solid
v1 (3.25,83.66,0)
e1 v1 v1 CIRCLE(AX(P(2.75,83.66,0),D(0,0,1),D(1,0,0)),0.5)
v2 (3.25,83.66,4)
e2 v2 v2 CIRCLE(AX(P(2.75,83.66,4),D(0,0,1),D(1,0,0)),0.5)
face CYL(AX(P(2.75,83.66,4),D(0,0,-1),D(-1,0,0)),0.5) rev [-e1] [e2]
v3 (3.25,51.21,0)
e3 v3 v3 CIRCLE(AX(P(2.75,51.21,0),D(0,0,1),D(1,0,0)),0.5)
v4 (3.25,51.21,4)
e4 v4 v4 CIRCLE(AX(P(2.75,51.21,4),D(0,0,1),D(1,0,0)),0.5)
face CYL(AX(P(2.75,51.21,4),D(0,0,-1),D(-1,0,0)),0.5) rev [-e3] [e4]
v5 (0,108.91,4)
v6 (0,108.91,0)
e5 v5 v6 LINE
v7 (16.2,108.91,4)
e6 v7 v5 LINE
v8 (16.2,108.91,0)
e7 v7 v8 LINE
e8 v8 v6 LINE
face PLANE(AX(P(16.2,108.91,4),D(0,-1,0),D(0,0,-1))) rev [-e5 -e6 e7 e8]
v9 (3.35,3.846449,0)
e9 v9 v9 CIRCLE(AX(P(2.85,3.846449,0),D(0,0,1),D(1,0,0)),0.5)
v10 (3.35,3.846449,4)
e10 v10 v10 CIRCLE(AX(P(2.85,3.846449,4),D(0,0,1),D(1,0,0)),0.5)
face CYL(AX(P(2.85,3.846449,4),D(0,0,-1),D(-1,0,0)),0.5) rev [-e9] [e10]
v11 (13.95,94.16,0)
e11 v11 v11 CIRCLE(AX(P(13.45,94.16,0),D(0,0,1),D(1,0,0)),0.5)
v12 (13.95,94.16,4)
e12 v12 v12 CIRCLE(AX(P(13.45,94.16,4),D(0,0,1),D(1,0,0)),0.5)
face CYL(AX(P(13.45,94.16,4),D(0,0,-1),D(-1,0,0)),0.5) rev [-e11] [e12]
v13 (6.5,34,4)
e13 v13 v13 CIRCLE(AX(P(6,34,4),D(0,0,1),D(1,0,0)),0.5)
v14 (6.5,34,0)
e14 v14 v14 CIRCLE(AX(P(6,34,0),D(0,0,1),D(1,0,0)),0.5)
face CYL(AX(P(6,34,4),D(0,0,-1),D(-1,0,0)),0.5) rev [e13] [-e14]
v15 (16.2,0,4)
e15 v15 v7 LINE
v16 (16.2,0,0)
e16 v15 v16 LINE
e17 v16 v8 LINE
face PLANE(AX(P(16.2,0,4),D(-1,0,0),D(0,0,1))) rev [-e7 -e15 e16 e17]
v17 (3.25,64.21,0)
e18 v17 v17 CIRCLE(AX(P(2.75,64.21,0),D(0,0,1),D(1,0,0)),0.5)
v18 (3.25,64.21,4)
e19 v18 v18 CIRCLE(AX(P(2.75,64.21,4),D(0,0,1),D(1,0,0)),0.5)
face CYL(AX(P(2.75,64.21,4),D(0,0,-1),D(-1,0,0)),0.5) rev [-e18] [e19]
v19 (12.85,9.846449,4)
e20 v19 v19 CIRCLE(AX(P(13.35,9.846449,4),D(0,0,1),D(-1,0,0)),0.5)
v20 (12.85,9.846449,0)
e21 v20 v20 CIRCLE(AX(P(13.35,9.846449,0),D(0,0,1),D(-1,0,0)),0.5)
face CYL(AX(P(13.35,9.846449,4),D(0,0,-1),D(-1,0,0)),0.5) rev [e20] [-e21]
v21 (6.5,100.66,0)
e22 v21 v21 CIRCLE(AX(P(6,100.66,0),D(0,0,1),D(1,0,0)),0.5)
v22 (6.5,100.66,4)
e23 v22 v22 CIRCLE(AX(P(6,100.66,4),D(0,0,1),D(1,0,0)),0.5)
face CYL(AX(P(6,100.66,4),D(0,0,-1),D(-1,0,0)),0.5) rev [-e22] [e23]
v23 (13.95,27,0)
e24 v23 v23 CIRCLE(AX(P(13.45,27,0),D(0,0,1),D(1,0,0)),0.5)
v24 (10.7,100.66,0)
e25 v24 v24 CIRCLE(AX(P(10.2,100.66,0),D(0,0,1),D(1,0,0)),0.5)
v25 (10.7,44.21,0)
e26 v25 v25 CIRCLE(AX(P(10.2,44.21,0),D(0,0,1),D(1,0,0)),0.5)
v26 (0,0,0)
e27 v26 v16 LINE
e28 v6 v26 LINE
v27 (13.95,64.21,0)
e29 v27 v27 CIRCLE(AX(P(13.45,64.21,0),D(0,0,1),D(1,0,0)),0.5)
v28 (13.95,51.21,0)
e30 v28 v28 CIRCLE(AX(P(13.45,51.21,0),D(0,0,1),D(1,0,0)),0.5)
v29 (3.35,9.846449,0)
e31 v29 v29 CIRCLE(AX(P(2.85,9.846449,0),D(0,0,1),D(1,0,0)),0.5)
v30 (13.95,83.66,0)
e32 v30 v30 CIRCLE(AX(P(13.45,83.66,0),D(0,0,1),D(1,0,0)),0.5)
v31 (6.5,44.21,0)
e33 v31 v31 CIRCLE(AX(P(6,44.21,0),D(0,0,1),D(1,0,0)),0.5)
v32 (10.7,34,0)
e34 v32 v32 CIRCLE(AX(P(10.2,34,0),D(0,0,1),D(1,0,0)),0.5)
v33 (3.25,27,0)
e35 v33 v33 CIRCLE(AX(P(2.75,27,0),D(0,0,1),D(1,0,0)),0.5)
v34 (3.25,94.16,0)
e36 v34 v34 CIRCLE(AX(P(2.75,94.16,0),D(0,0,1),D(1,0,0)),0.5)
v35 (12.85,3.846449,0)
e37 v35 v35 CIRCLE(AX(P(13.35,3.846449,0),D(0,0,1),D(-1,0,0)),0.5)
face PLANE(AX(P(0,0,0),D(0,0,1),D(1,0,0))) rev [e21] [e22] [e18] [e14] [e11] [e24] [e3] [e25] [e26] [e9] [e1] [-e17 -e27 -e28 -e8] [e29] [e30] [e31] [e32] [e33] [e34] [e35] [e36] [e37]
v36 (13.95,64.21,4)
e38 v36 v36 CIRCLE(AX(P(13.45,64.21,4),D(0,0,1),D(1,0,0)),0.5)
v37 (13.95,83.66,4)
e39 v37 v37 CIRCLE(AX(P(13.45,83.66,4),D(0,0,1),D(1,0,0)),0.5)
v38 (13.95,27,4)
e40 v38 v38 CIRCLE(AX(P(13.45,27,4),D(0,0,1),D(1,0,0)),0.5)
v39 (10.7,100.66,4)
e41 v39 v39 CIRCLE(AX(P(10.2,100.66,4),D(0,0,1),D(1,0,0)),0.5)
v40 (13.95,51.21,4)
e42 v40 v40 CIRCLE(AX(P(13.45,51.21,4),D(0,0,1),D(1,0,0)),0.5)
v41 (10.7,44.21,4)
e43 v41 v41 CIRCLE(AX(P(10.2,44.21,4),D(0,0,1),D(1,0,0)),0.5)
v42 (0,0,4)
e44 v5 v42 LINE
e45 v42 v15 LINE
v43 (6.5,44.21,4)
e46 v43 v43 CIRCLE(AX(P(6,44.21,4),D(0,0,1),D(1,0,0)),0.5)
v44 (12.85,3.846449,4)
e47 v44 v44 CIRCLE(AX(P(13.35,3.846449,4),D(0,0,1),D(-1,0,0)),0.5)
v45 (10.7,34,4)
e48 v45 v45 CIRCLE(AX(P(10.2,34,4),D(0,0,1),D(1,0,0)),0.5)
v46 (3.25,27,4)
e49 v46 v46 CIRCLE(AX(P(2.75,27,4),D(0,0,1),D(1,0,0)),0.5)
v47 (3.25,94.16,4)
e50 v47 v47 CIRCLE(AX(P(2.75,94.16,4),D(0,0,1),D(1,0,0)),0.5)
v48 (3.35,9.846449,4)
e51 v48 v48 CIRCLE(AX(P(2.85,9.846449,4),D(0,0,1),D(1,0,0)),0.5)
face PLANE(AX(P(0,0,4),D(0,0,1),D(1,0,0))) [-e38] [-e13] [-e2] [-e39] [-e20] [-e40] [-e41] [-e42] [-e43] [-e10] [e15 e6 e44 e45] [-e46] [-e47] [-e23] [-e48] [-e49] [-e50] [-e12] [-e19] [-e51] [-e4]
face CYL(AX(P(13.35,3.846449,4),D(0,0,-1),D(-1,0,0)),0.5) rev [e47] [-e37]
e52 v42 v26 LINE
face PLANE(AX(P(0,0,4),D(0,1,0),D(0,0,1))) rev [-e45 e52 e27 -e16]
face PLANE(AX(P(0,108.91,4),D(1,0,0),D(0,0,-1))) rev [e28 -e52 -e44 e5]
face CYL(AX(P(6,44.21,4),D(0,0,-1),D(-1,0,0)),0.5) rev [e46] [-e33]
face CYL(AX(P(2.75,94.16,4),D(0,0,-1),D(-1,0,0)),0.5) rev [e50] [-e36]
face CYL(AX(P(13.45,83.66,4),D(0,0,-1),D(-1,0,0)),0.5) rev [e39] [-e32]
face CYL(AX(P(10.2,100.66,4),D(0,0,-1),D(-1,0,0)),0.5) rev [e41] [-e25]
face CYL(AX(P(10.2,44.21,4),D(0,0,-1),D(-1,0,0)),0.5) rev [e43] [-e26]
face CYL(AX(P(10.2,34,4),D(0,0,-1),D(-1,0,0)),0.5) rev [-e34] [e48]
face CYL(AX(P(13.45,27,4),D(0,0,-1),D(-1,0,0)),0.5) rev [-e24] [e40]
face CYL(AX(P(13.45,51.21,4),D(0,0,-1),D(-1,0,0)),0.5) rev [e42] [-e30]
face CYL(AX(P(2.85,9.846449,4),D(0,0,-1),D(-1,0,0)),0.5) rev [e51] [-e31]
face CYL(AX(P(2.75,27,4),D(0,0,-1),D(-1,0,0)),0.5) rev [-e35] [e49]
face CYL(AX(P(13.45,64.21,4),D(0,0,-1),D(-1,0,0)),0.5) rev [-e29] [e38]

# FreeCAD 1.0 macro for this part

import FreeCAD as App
import Part
import Sketcher

V = App.Vector


def add_polygon(sketch, points):
    """Adds a closed chain of lines whose ends are joined by coincident constraints."""
    first, n = sketch.GeometryCount, len(points)
    for a, b in zip(points, points[1:] + points[:1]):
        sketch.addGeometry(Part.LineSegment(App.Vector(*a, 0), App.Vector(*b, 0)), False)
    for i in range(n):
        sketch.addConstraint(Sketcher.Constraint("Coincident", first + i, 2, first + (i + 1) % n, 1))

doc = App.newDocument("Part")
body = doc.addObject("PartDesign::Body", "Body")

# Sketch on XY plane
sketch1 = body.newObject("Sketcher::SketchObject", "Sketch")
sketch1.AttachmentSupport = (doc.getObject("XY_Plane"), [""])
sketch1.MapMode = "FlatFace"
add_polygon(sketch1, [(0, 108.9), (0, 0), (16.2, 0), (16.2, 108.9)])  # lines 0-3
sketch1.addGeometry(Part.Circle(V(2.9, 3.8, 0), V(0, 0, 1), 0.5), False)  # 4
sketch1.addGeometry(Part.Circle(V(2.9, 9.8, 0), V(0, 0, 1), 0.5), False)  # 5
sketch1.addGeometry(Part.Circle(V(2.8, 27, 0), V(0, 0, 1), 0.5), False)  # 6
sketch1.addGeometry(Part.Circle(V(2.8, 51.2, 0), V(0, 0, 1), 0.5), False)  # 7
sketch1.addGeometry(Part.Circle(V(6, 34, 0), V(0, 0, 1), 0.5), False)  # 8
sketch1.addGeometry(Part.Circle(V(6, 44.2, 0), V(0, 0, 1), 0.5), False)  # 9
sketch1.addGeometry(Part.Circle(V(13.3, 3.8, 0), V(0, 0, 1), 0.5), False)  # 10
sketch1.addGeometry(Part.Circle(V(13.3, 9.8, 0), V(0, 0, 1), 0.5), False)  # 11
sketch1.addGeometry(Part.Circle(V(13.4, 27, 0), V(0, 0, 1), 0.5), False)  # 12
sketch1.addGeometry(Part.Circle(V(10.2, 34, 0), V(0, 0, 1), 0.5), False)  # 13
sketch1.addGeometry(Part.Circle(V(10.2, 44.2, 0), V(0, 0, 1), 0.5), False)  # 14
sketch1.addGeometry(Part.Circle(V(13.4, 51.2, 0), V(0, 0, 1), 0.5), False)  # 15
sketch1.addGeometry(Part.Circle(V(2.8, 64.2, 0), V(0, 0, 1), 0.5), False)  # 16
sketch1.addGeometry(Part.Circle(V(2.8, 83.7, 0), V(0, 0, 1), 0.5), False)  # 17
sketch1.addGeometry(Part.Circle(V(2.8, 94.2, 0), V(0, 0, 1), 0.5), False)  # 18
sketch1.addGeometry(Part.Circle(V(6, 100.7, 0), V(0, 0, 1), 0.5), False)  # 19
sketch1.addGeometry(Part.Circle(V(13.4, 64.2, 0), V(0, 0, 1), 0.5), False)  # 20
sketch1.addGeometry(Part.Circle(V(10.2, 100.7, 0), V(0, 0, 1), 0.5), False)  # 21
sketch1.addGeometry(Part.Circle(V(13.4, 83.7, 0), V(0, 0, 1), 0.5), False)  # 22
sketch1.addGeometry(Part.Circle(V(13.4, 94.2, 0), V(0, 0, 1), 0.5), False)  # 23
sketch1.addConstraint([
    Sketcher.Constraint("Vertical", 0),
    Sketcher.Constraint("Horizontal", 1),
    Sketcher.Constraint("Vertical", 2),
    Sketcher.Constraint("Horizontal", 3),
    Sketcher.Constraint("Coincident", 0, 2, -1, 1),
    Sketcher.Constraint("Equal", 4, 5),
    Sketcher.Constraint("Equal", 5, 6),
    Sketcher.Constraint("Equal", 6, 7),
    Sketcher.Constraint("Equal", 7, 8),
    Sketcher.Constraint("Equal", 8, 9),
    Sketcher.Constraint("Equal", 9, 10),
    Sketcher.Constraint("Equal", 10, 11),
    Sketcher.Constraint("Equal", 11, 12),
    Sketcher.Constraint("Equal", 12, 13),
    Sketcher.Constraint("Equal", 13, 14),
    Sketcher.Constraint("Equal", 14, 15),
    Sketcher.Constraint("Equal", 15, 16),
    Sketcher.Constraint("Equal", 16, 17),
    Sketcher.Constraint("Equal", 17, 18),
    Sketcher.Constraint("Equal", 18, 19),
    Sketcher.Constraint("Equal", 19, 20),
    Sketcher.Constraint("Equal", 20, 21),
    Sketcher.Constraint("Equal", 21, 22),
    Sketcher.Constraint("Equal", 22, 23),
    Sketcher.Constraint("Horizontal", 4, 3, 10, 3),
    Sketcher.Constraint("Horizontal", 5, 3, 11, 3),
    Sketcher.Constraint("Horizontal", 6, 3, 12, 3),
    Sketcher.Constraint("Horizontal", 8, 3, 13, 3),
    Sketcher.Constraint("Horizontal", 9, 3, 14, 3),
    Sketcher.Constraint("Horizontal", 7, 3, 15, 3),
    Sketcher.Constraint("Horizontal", 16, 3, 20, 3),
    Sketcher.Constraint("Horizontal", 19, 3, 21, 3),
    Sketcher.Constraint("Horizontal", 17, 3, 22, 3),
    Sketcher.Constraint("Horizontal", 18, 3, 23, 3),
    Sketcher.Constraint("Vertical", 4, 3, 5, 3),
    Sketcher.Constraint("Vertical", 6, 3, 7, 3),
    Sketcher.Constraint("Vertical", 8, 3, 9, 3),
    Sketcher.Constraint("Vertical", 10, 3, 11, 3),
    Sketcher.Constraint("Vertical", 13, 3, 14, 3),
    Sketcher.Constraint("Vertical", 12, 3, 15, 3),
    Sketcher.Constraint("Vertical", 7, 3, 16, 3),
    Sketcher.Constraint("Vertical", 16, 3, 17, 3),
    Sketcher.Constraint("Vertical", 17, 3, 18, 3),
    Sketcher.Constraint("Vertical", 9, 3, 19, 3),
    Sketcher.Constraint("Vertical", 15, 3, 20, 3),
    Sketcher.Constraint("Vertical", 14, 3, 21, 3),
    Sketcher.Constraint("Vertical", 20, 3, 22, 3),
    Sketcher.Constraint("Vertical", 22, 3, 23, 3),
    Sketcher.Constraint("Diameter", 4, 1.0),
    Sketcher.Constraint("DistanceX", 1, 1, 1, 2, 16.2),
    Sketcher.Constraint("DistanceY", -1, 1, 6, 3, 27.0),
    Sketcher.Constraint("DistanceX", -1, 1, 8, 3, 6.0),
    Sketcher.Constraint("DistanceY", -1, 1, 8, 3, 34.0),
    Sketcher.Constraint("DistanceY", 4, 3, 5, 3, 6.0),
    Sketcher.Constraint("DistanceY", 9, 3, 7, 3, 7.0),
    Sketcher.Constraint("DistanceY", 7, 3, 16, 3, 13.0),
    Sketcher.Constraint("DistanceY", 17, 3, 19, 3, 17.0),
    Sketcher.Constraint("DistanceX", 21, 3, 2, 2, 6.0),
    Sketcher.Constraint("DistanceY", 0, 2, 0, 1, 108.91),
    Sketcher.Constraint("DistanceX", 6, 3, 5, 3, 0.1),
    Sketcher.Constraint("DistanceX", 4, 3, 10, 3, 10.5),
    Sketcher.Constraint("DistanceX", 6, 3, 12, 3, 10.7),
    Sketcher.Constraint("DistanceY", 17, 3, 18, 3, 10.5),
    Sketcher.Constraint("DistanceX", -1, 1, 4, 3, 2.85),
    Sketcher.Constraint("DistanceY", -1, 1, 7, 3, 51.21),
    Sketcher.Constraint("DistanceY", -1, 1, 17, 3, 83.66),
    Sketcher.Constraint("DistanceY", -1, 1, 4, 3, 3.846449),
])
pad1 = body.newObject("PartDesign::Pad", "Pad")
pad1.Profile = sketch1
pad1.Length = 4

doc.recompute()
